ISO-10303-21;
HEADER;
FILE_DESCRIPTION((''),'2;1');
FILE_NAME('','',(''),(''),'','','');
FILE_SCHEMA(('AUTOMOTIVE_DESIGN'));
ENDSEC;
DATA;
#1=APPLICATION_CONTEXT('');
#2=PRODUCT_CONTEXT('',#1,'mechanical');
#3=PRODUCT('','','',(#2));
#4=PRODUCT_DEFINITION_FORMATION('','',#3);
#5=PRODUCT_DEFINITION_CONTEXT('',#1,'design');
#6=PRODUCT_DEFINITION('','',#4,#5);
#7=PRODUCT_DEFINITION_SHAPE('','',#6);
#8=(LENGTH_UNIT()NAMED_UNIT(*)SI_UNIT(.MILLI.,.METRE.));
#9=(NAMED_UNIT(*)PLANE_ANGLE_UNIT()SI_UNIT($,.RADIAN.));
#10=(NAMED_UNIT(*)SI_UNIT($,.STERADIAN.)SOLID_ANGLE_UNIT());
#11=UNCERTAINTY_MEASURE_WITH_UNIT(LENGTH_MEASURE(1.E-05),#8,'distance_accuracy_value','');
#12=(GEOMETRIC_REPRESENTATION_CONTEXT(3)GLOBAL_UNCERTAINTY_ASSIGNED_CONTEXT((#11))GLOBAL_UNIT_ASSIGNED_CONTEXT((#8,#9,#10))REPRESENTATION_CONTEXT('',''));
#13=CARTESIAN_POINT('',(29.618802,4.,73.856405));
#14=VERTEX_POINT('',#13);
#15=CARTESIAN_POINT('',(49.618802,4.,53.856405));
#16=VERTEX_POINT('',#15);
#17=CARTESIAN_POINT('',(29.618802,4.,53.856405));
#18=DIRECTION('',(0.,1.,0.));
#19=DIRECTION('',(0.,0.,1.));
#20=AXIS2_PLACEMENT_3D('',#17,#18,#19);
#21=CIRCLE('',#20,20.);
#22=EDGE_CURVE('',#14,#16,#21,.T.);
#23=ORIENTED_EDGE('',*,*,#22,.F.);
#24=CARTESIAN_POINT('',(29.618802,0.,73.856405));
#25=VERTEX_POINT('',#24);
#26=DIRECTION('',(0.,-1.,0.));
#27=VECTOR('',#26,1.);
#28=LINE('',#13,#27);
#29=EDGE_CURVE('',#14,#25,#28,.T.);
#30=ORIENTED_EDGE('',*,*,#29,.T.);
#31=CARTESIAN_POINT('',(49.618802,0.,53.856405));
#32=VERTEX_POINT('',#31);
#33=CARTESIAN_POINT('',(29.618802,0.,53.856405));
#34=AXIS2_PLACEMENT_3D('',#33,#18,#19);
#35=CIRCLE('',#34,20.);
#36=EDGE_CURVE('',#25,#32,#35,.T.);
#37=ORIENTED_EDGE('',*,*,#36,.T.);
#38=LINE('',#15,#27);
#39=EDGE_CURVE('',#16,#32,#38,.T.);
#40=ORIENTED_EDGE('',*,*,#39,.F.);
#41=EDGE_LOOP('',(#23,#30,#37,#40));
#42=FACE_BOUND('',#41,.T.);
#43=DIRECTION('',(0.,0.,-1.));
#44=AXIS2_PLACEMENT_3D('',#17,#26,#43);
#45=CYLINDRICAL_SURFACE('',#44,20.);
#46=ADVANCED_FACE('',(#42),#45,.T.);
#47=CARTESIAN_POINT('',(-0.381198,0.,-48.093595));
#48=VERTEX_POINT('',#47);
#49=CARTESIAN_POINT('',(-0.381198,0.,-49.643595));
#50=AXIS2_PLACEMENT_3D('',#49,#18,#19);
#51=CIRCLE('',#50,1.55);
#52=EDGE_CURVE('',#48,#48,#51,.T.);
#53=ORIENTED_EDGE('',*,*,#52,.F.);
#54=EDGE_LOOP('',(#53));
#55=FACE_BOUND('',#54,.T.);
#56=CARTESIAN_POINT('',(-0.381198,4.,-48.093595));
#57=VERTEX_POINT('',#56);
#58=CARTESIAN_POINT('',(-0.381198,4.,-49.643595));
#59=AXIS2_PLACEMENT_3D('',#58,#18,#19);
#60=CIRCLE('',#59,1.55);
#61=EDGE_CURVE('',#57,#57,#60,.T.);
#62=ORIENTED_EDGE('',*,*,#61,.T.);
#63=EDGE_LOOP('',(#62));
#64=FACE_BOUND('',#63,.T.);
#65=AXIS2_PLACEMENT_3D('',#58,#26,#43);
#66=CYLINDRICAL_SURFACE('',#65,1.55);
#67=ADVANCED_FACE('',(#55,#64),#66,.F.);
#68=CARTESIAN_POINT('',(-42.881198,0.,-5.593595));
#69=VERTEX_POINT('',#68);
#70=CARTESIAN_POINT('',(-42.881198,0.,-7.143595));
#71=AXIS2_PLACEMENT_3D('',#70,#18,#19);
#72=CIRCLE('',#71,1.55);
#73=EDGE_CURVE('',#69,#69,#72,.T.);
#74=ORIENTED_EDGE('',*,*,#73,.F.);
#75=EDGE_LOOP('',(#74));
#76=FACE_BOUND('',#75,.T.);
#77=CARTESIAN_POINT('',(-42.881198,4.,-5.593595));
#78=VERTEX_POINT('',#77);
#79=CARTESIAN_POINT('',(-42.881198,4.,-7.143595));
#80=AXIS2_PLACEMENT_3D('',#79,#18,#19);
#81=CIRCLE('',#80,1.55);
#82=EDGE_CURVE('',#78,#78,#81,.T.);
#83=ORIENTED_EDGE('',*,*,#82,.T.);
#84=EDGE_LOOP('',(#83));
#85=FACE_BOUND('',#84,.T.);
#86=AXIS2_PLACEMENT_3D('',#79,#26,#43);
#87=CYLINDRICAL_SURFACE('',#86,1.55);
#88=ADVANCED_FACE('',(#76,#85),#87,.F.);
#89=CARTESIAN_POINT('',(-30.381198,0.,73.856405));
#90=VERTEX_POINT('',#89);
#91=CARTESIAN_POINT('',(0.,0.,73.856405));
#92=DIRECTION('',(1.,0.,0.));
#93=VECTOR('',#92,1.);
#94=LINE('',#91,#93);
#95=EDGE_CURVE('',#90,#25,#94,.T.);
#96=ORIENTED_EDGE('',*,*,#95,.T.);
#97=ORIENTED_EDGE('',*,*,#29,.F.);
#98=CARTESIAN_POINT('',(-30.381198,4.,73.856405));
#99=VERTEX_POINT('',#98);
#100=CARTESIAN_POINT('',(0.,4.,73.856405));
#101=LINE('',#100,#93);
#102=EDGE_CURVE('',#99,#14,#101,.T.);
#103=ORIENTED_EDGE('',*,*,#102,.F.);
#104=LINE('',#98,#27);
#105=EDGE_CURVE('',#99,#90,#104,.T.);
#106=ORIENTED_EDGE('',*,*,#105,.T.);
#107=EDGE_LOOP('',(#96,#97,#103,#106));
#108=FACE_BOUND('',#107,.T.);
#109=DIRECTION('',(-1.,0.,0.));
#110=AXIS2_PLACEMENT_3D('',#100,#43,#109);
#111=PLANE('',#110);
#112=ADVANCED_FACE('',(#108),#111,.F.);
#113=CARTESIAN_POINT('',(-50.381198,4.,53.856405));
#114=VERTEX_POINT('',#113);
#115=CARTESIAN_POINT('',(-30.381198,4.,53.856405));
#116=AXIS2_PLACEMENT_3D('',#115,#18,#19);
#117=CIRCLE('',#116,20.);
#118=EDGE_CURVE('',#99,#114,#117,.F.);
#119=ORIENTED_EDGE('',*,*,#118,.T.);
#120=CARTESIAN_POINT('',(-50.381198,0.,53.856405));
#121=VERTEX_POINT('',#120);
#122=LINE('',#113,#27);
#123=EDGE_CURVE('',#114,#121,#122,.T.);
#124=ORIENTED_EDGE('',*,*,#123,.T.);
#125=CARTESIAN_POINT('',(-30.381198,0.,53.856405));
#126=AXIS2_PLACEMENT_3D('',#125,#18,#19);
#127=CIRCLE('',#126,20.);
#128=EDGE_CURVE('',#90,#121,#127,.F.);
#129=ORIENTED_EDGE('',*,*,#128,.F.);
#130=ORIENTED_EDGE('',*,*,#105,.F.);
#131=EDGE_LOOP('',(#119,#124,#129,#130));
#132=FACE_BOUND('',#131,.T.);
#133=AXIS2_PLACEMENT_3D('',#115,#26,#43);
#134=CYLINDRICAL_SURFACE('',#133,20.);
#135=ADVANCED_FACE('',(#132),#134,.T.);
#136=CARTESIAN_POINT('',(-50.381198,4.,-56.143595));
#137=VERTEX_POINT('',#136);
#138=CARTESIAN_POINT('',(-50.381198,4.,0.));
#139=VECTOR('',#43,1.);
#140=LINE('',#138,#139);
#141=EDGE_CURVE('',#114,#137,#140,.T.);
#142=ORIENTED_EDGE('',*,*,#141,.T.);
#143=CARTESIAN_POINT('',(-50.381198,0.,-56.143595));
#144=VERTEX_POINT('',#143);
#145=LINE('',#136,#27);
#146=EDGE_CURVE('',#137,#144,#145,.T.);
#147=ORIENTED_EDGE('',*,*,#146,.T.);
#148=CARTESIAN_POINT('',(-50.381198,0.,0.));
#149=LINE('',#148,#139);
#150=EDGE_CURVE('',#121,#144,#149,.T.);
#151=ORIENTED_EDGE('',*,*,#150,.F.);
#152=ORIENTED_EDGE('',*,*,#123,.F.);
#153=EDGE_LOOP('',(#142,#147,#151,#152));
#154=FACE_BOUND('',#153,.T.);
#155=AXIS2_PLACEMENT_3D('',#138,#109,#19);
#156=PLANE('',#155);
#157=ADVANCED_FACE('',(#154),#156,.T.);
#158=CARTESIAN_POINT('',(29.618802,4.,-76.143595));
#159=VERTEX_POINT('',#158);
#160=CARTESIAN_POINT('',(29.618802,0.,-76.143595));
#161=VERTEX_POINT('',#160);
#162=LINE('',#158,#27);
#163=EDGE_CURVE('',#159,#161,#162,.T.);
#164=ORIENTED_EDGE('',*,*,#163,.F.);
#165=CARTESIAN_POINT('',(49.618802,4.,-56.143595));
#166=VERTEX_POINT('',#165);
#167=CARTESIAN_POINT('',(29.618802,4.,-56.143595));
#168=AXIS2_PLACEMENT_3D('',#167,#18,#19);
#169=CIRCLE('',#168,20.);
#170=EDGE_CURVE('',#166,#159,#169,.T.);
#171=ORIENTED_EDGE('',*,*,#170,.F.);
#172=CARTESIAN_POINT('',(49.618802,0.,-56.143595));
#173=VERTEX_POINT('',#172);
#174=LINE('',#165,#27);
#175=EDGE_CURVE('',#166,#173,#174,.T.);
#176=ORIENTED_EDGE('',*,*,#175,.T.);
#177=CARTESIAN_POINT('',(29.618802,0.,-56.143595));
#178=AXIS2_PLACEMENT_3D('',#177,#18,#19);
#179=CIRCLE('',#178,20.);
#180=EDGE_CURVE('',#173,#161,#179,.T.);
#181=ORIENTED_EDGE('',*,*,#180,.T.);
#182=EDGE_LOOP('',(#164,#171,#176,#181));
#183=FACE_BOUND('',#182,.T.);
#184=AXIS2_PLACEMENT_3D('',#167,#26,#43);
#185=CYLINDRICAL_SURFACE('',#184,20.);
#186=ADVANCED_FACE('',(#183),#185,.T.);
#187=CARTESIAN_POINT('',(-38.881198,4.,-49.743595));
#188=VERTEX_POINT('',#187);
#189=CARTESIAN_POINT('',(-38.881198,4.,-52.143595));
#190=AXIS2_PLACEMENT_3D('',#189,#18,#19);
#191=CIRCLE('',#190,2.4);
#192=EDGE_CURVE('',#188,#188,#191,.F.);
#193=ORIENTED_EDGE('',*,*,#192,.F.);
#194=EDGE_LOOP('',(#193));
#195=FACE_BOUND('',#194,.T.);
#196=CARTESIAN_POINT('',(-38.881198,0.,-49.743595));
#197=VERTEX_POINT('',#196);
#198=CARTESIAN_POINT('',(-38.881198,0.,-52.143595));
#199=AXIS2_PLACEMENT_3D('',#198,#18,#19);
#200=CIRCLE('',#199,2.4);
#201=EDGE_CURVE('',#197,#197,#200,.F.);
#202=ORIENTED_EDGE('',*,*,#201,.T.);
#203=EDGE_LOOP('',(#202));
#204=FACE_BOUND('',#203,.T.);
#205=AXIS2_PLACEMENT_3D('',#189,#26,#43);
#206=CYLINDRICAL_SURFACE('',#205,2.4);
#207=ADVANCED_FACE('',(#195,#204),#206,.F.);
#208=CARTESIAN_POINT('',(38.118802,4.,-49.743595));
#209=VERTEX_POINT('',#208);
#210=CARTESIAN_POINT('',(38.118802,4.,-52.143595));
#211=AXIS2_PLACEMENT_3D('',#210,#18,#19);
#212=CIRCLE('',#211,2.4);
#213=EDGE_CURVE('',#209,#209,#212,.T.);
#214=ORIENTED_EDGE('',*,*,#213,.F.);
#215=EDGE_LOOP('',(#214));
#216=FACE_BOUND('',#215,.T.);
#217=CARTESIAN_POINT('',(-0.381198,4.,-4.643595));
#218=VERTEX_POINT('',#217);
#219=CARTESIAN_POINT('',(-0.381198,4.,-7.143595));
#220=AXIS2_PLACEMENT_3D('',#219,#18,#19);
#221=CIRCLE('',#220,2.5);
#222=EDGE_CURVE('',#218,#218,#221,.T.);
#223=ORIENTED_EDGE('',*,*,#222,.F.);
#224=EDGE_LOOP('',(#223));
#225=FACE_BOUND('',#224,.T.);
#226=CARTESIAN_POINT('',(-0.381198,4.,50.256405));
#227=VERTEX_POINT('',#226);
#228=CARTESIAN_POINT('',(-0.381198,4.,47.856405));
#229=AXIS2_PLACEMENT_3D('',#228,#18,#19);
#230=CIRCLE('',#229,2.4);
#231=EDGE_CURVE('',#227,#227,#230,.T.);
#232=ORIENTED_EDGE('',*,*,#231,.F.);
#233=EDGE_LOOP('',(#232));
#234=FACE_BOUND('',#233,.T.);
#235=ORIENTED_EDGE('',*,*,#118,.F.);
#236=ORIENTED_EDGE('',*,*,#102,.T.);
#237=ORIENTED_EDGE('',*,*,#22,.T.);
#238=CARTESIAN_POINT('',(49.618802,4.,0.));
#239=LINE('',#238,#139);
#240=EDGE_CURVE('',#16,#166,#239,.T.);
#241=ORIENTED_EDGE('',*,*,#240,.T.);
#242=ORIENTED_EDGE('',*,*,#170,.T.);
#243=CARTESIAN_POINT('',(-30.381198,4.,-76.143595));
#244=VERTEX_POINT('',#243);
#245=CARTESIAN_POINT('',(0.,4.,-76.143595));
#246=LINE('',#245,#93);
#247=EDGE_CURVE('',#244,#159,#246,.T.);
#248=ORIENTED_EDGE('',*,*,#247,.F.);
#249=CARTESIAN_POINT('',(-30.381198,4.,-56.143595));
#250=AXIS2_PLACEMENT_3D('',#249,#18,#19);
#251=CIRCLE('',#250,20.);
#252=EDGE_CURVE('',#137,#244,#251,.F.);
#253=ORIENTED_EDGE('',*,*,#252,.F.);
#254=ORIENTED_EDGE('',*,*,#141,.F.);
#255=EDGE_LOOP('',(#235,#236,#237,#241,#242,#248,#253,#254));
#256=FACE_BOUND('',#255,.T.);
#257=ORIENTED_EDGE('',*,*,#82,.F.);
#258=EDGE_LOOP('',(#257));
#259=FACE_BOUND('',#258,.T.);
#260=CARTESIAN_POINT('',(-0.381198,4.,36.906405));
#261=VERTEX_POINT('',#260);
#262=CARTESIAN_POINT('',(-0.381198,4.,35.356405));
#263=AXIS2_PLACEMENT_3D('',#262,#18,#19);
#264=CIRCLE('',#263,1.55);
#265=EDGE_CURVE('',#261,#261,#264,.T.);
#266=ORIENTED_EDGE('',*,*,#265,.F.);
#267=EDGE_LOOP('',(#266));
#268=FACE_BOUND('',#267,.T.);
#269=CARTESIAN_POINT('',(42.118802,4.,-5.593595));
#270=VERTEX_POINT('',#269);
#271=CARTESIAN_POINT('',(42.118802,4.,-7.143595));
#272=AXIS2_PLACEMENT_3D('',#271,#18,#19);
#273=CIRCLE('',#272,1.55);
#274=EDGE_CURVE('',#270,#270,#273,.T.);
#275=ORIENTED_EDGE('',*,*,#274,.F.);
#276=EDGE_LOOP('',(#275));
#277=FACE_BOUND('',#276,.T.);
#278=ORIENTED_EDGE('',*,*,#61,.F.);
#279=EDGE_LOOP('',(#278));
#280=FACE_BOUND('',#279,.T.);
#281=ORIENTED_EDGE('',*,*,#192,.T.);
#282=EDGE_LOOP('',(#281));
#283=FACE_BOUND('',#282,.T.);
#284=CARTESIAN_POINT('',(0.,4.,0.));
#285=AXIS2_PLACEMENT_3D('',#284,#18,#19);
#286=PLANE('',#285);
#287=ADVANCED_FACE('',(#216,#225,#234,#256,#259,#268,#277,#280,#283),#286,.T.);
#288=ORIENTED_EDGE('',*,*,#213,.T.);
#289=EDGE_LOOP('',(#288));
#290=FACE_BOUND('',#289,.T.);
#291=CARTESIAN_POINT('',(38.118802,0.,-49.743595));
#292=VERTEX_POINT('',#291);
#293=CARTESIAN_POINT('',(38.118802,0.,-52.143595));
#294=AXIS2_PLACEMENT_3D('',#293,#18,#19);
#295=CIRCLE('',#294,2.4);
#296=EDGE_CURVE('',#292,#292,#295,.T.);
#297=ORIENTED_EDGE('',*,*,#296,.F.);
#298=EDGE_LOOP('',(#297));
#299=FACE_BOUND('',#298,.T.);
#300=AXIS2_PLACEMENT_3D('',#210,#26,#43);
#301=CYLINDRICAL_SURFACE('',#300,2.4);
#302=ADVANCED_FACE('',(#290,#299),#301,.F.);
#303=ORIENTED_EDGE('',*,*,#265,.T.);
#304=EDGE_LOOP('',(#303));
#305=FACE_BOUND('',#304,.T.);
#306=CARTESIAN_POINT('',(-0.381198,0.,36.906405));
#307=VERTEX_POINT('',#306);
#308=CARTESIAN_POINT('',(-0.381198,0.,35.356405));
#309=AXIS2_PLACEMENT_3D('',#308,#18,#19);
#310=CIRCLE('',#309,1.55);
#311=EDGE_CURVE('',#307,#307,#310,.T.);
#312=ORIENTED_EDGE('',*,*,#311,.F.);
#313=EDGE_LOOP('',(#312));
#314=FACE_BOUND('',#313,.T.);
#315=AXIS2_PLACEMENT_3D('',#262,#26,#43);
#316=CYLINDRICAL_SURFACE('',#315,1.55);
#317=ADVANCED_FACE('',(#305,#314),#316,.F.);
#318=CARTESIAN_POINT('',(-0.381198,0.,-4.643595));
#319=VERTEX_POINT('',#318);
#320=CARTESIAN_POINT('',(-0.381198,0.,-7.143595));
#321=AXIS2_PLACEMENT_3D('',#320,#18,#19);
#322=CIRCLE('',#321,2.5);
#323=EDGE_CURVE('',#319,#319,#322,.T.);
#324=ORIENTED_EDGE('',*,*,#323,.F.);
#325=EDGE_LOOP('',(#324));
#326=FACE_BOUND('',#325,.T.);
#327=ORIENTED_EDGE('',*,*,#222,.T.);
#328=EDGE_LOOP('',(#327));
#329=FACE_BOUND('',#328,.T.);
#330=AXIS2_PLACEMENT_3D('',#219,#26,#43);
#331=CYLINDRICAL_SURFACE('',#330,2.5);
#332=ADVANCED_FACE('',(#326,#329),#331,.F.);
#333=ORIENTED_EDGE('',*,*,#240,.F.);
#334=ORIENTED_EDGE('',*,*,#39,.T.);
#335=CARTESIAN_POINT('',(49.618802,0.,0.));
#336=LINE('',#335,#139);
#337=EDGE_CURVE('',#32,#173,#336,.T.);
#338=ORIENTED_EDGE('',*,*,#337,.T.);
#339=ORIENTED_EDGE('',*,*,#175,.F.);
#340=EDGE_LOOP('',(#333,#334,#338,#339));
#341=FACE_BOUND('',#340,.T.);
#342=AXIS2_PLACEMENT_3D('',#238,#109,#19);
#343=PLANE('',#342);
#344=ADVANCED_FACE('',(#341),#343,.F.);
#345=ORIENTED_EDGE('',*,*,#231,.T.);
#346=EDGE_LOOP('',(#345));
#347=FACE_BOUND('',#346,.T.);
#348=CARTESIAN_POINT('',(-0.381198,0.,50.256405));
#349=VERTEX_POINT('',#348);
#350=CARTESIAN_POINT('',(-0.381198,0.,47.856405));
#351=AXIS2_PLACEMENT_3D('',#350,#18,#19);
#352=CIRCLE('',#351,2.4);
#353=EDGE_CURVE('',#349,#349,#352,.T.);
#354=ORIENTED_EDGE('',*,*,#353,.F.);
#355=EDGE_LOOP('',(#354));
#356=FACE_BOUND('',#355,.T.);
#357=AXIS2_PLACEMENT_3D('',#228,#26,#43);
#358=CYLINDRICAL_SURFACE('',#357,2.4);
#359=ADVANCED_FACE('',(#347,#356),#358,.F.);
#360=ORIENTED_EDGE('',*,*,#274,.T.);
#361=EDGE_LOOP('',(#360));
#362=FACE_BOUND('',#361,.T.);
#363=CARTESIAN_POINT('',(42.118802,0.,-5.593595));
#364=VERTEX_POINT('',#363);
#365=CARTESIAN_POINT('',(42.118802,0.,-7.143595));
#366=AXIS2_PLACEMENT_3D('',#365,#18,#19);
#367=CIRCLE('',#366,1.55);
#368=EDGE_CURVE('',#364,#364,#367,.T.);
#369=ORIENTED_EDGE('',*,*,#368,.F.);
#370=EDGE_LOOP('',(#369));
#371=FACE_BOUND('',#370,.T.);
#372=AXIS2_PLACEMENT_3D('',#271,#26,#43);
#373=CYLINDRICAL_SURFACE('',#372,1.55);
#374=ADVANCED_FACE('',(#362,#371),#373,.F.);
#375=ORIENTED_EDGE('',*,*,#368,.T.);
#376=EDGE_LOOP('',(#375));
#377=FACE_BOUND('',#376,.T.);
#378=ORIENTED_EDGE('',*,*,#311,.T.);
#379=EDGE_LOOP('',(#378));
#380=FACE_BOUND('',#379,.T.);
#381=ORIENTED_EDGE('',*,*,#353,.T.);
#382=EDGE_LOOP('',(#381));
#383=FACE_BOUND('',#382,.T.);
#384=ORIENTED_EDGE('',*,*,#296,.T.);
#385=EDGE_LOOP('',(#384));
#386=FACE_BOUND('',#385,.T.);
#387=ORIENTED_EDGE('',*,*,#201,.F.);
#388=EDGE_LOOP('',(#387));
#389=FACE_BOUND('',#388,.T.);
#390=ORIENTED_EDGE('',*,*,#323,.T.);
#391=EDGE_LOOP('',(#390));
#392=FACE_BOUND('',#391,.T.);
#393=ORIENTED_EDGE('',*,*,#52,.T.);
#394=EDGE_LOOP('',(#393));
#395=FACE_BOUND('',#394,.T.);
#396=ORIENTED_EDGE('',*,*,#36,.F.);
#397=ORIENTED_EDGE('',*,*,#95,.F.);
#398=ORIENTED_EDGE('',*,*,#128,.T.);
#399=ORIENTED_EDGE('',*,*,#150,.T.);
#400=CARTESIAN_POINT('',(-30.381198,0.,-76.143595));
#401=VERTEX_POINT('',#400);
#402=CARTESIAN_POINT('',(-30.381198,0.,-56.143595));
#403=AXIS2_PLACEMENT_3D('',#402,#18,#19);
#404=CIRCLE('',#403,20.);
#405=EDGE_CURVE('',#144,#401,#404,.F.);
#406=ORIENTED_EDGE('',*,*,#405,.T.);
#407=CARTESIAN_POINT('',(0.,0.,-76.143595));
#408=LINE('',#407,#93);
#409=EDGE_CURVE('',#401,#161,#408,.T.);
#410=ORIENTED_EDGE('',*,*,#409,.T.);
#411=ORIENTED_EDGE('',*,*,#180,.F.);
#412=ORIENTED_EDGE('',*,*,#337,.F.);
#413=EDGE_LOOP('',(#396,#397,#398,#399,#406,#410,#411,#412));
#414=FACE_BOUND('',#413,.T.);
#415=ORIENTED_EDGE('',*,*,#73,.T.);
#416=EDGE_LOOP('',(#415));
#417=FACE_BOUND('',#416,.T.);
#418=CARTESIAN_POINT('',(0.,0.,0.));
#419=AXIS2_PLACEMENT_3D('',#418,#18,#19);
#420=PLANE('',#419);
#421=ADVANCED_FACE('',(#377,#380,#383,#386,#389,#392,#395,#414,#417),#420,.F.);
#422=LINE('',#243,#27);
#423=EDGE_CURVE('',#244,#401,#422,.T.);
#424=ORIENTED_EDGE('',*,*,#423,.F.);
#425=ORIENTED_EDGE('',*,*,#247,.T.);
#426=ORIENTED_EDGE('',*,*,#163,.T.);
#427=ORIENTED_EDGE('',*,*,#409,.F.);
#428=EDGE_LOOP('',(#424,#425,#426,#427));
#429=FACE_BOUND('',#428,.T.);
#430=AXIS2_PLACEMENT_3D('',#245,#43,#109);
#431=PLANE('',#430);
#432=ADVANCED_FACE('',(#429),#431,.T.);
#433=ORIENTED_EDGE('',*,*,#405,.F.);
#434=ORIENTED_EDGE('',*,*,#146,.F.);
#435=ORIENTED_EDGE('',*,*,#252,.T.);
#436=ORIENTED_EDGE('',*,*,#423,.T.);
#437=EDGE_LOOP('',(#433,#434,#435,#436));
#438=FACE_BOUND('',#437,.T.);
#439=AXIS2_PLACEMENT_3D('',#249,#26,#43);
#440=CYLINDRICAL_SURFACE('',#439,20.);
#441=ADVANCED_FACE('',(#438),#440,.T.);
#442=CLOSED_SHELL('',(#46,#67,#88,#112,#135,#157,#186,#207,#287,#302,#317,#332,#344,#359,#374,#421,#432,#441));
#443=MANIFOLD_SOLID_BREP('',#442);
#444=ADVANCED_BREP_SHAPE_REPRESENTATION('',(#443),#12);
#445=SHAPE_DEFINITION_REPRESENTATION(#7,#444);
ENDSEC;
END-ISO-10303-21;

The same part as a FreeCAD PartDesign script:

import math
import FreeCAD as App
import Part
import Sketcher
from FreeCAD import Vector

doc = App.newDocument("Part")
body = doc.addObject("PartDesign::Body", "Body")

# Sketch on XZ plane
sketch1 = doc.addObject("Sketcher::SketchObject", "Sketch")
body.addObject(sketch1)
sketch1.AttachmentSupport = (doc.XZ_Plane, [""])
sketch1.MapMode = "FlatFace"
sketch1.addGeometry([
    Part.LineSegment(Vector(-30.4, 73.9, 0), Vector(29.6, 73.9, 0)),  # 0
    Part.ArcOfCircle(Part.Circle(Vector(29.6, 53.9, 0), Vector(0, 0, 1), 20), math.radians(0), math.radians(90)),  # 1
    Part.LineSegment(Vector(49.6, 53.9, 0), Vector(49.6, -56.1, 0)),  # 2
    Part.ArcOfCircle(Part.Circle(Vector(29.6, -56.1, 0), Vector(0, 0, 1), 20), math.radians(-90), math.radians(0)),  # 3
    Part.LineSegment(Vector(29.6, -76.1, 0), Vector(-30.4, -76.1, 0)),  # 4
    Part.ArcOfCircle(Part.Circle(Vector(-30.4, -56.1, 0), Vector(0, 0, 1), 20), math.radians(-180), math.radians(-90)),  # 5
    Part.LineSegment(Vector(-50.4, -56.1, 0), Vector(-50.4, 53.9, 0)),  # 6
    Part.ArcOfCircle(Part.Circle(Vector(-30.4, 53.9, 0), Vector(0, 0, 1), 20), math.radians(90), math.radians(180)),  # 7
    Part.Circle(Vector(-0.4, 47.9, 0), Vector(0, 0, 1), 2.4),  # 8
    Part.Circle(Vector(-0.4, 35.4, 0), Vector(0, 0, 1), 1.6),  # 9
    Part.Circle(Vector(-42.9, -7.1, 0), Vector(0, 0, 1), 1.6),  # 10
    Part.Circle(Vector(-38.9, -52.1, 0), Vector(0, 0, 1), 2.4),  # 11
    Part.Circle(Vector(-0.4, -7.1, 0), Vector(0, 0, 1), 2.5),  # 12
    Part.Circle(Vector(42.1, -7.1, 0), Vector(0, 0, 1), 1.6),  # 13
    Part.Circle(Vector(-0.4, -49.6, 0), Vector(0, 0, 1), 1.6),  # 14
    Part.Circle(Vector(38.1, -52.1, 0), Vector(0, 0, 1), 2.4),  # 15
], False)
sketch1.addConstraint([
    Sketcher.Constraint("Tangent", 0, 2, 1, 2),
    Sketcher.Constraint("Tangent", 1, 1, 2, 1),
    Sketcher.Constraint("Tangent", 2, 2, 3, 2),
    Sketcher.Constraint("Tangent", 3, 1, 4, 1),
    Sketcher.Constraint("Tangent", 4, 2, 5, 2),
    Sketcher.Constraint("Tangent", 5, 1, 6, 1),
    Sketcher.Constraint("Tangent", 6, 2, 7, 2),
    Sketcher.Constraint("Tangent", 7, 1, 0, 1),
    Sketcher.Constraint("Horizontal", 0),
    Sketcher.Constraint("Vertical", 2),
    Sketcher.Constraint("Horizontal", 4),
    Sketcher.Constraint("Vertical", 6),
    Sketcher.Constraint("Equal", 1, 3),
    Sketcher.Constraint("Equal", 3, 5),
    Sketcher.Constraint("Equal", 5, 7),
    Sketcher.Constraint("Equal", 9, 10),
    Sketcher.Constraint("Equal", 8, 11),
    Sketcher.Constraint("Equal", 10, 13),
    Sketcher.Constraint("Equal", 13, 14),
    Sketcher.Constraint("Equal", 11, 15),
    Sketcher.Constraint("Horizontal", 10, 3, 12, 3),
    Sketcher.Constraint("Horizontal", 12, 3, 13, 3),
    Sketcher.Constraint("Horizontal", 11, 3, 15, 3),
    Sketcher.Constraint("Vertical", 8, 3, 9, 3),
    Sketcher.Constraint("Vertical", 9, 3, 12, 3),
    Sketcher.Constraint("Vertical", 12, 3, 14, 3),
    Sketcher.Constraint("Diameter", 12, 5.0),
    Sketcher.Constraint("Radius", 1, 20.0),
    Sketcher.Constraint("Diameter", 8, 4.8),
    Sketcher.Constraint("Diameter", 9, 3.1),
    Sketcher.Constraint("DistanceX", 0, 1, 0, 2, 60.0),
    Sketcher.Constraint("DistanceY", 2, 2, 2, 1, 110.0),
    Sketcher.Constraint("DistanceX", 7, 3, 8, 3, 30.0),
    Sketcher.Constraint("DistanceY", 8, 3, 7, 3, 6.0),
    Sketcher.Constraint("DistanceY", 5, 3, 10, 3, 49.0),
    Sketcher.Constraint("DistanceY", 5, 3, 11, 3, 4.0),
    Sketcher.Constraint("DistanceX", 10, 3, 11, 3, 4.0),
    Sketcher.Constraint("DistanceX", 15, 3, 13, 3, 4.0),
    Sketcher.Constraint("DistanceY", 9, 3, 8, 3, 12.5),
    Sketcher.Constraint("DistanceX", 10, 3, 5, 3, 12.5),
    Sketcher.Constraint("DistanceX", 12, 3, 13, 3, 42.5),
    Sketcher.Constraint("DistanceY", 5, 3, 14, 3, 6.5),
    Sketcher.Constraint("DistanceX", -1, 1, 1, 3, 29.618802),
    Sketcher.Constraint("DistanceY", -1, 1, 1, 3, 53.856405),
])
pad1 = doc.addObject("PartDesign::Pad", "Pad")
body.addObject(pad1)
pad1.Profile = sketch1
pad1.Length = 4
pad1.Reversed = True

doc.recompute()
